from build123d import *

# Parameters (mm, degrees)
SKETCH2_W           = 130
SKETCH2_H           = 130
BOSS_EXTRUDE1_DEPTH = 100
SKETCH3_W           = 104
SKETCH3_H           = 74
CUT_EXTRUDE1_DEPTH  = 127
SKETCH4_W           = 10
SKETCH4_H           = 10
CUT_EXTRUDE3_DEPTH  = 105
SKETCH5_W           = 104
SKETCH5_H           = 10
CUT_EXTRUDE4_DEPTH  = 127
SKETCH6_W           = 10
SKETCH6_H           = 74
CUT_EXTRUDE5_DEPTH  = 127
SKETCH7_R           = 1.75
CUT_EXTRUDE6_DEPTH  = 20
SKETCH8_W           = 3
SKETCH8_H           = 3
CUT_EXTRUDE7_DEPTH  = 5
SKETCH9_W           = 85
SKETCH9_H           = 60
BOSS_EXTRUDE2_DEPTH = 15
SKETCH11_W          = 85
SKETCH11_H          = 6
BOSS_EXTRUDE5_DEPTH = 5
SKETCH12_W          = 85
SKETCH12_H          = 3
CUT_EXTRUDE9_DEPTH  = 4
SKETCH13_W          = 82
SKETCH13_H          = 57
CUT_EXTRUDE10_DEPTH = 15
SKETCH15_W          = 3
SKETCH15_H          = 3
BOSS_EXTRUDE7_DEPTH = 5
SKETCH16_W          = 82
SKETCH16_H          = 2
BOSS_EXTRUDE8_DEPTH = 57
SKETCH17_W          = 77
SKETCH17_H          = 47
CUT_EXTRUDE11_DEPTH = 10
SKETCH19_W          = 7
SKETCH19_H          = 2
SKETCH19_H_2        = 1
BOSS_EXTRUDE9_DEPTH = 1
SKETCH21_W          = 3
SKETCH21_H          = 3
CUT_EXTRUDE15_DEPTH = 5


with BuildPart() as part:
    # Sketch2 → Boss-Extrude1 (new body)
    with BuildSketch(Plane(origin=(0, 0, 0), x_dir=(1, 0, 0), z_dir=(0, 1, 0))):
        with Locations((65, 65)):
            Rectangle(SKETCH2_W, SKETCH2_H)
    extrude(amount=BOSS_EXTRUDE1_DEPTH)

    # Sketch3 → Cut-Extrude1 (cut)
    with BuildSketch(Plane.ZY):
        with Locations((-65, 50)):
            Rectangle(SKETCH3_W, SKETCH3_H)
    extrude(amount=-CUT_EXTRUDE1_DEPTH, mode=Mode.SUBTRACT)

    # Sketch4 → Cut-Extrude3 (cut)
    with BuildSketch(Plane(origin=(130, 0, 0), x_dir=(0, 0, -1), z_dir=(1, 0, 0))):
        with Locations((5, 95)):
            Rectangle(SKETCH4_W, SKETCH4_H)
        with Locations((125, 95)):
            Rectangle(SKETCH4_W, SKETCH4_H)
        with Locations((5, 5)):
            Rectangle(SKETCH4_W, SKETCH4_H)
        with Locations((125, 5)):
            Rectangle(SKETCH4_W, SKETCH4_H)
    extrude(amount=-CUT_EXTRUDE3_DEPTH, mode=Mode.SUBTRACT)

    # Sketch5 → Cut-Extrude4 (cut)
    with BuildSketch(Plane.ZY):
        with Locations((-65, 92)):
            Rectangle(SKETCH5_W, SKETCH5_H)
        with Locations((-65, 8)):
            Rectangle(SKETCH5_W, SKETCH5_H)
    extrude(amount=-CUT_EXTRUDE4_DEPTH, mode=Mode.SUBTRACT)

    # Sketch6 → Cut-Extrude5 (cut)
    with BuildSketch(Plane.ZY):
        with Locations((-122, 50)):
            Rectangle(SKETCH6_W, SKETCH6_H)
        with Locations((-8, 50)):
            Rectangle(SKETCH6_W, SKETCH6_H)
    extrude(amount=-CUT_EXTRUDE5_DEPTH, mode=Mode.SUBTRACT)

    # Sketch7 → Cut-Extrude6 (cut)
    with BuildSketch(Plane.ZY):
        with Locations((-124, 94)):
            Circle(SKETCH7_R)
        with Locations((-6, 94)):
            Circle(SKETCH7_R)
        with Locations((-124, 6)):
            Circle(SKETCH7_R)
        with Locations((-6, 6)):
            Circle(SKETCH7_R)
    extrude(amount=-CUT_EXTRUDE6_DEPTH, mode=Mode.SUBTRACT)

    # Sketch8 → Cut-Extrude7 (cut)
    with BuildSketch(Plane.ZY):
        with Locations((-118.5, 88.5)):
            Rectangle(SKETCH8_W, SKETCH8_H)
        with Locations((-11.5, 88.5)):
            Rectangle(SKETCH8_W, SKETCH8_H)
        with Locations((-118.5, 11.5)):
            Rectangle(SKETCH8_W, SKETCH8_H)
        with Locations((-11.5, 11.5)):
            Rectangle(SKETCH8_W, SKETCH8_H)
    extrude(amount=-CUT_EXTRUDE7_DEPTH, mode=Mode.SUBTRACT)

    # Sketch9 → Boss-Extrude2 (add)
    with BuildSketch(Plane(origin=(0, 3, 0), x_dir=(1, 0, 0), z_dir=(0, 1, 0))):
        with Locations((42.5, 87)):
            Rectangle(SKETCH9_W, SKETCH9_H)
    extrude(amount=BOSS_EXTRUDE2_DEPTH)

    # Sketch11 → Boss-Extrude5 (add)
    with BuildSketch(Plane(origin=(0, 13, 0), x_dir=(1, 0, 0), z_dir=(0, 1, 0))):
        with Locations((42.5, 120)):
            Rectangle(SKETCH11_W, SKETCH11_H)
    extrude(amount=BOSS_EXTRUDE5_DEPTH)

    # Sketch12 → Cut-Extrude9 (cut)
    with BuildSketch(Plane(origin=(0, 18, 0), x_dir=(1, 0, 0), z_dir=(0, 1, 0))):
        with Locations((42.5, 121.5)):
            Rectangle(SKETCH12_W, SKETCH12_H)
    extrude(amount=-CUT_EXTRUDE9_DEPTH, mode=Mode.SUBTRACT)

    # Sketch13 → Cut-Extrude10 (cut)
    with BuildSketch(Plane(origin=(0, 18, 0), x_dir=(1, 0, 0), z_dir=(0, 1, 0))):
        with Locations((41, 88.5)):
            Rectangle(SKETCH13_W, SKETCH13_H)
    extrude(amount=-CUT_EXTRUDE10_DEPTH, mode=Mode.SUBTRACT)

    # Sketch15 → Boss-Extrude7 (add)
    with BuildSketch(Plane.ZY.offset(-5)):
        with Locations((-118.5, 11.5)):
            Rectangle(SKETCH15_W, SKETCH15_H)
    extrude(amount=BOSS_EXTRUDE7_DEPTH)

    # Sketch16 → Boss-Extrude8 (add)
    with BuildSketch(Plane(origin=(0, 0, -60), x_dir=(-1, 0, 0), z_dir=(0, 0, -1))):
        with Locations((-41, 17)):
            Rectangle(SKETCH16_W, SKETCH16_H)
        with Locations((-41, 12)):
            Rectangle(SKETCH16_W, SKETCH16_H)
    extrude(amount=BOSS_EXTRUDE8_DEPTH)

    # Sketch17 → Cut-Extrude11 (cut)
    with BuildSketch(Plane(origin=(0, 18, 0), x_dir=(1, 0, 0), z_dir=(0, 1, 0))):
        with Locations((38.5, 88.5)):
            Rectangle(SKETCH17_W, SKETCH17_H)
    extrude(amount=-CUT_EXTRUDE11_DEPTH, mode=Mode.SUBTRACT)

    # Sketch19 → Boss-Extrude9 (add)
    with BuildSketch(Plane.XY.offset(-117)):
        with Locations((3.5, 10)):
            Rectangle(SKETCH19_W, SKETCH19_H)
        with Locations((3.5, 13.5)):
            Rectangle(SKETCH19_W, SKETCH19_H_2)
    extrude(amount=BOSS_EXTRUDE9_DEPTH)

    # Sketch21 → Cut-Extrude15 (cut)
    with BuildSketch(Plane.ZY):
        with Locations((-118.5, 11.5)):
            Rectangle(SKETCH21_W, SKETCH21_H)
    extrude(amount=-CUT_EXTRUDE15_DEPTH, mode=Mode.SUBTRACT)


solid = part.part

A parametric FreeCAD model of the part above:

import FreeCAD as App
import Part
import Sketcher
from FreeCAD import Vector

doc = App.newDocument("Part")
params = doc.addObject("Spreadsheet::Sheet", "Params")
for row, (alias, value) in enumerate([
    ("sketch1_width", "130 mm"),
    ("pad1_length", "100 mm"),
    ("sketch2_width", "74 mm"),
    ("sketch2_height", "104 mm"),
    ("pocket1_length", "127 mm"),
    ("sketch3_width", "10 mm"),
    ("pocket2_length", "105 mm"),
    ("sketch4_width", "10 mm"),
    ("sketch4_height", "104 mm"),
    ("pocket3_length", "127 mm"),
    ("sketch5_width", "74 mm"),
    ("sketch5_height", "10 mm"),
    ("pocket4_length", "127 mm"),
    ("sketch6_diameter", "3.5 mm"),
    ("pocket5_length", "20 mm"),
    ("sketch7_width", "3 mm"),
    ("pocket6_length", "5 mm"),
    ("sketch8_width", "85 mm"),
    ("sketch8_height", "60 mm"),
    ("pad2_length", "15 mm"),
    ("sketch9_width", "85 mm"),
    ("sketch9_height", "6 mm"),
    ("pad3_length", "5 mm"),
    ("sketch10_width", "85 mm"),
    ("sketch10_height", "3 mm"),
    ("pocket7_length", "4 mm"),
    ("sketch11_width", "82 mm"),
    ("sketch11_height", "57 mm"),
    ("pocket8_length", "15 mm"),
    ("sketch12_width", "3 mm"),
    ("pad4_length", "5 mm"),
    ("sketch13_width", "82 mm"),
    ("sketch13_height", "2 mm"),
    ("pad5_length", "57 mm"),
    ("sketch14_width", "77 mm"),
    ("sketch14_height", "47 mm"),
    ("pocket9_length", "10 mm"),
    ("sketch15_width", "7 mm"),
    ("sketch15_height", "2 mm"),
    ("sketch15_height2", "1 mm"),
    ("pad6_length", "1 mm"),
    ("sketch16_width", "3 mm"),
    ("pocket10_length", "5 mm"),
], start=1):
    params.set(f"A{row}", alias)
    params.set(f"B{row}", "=" + value)
    params.setAlias(f"B{row}", alias)

body = doc.addObject("PartDesign::Body", "Body")

# Sketch on XZ plane
sketch1 = body.newObject("Sketcher::SketchObject", "Sketch")
sketch1.AttachmentSupport = (doc.getObject("XZ_Plane"), [""])
sketch1.MapMode = "FlatFace"
sketch1.addGeometry([
    Part.LineSegment(Vector(0, -130, 0), Vector(0, 0, 0)),
    Part.LineSegment(Vector(0, 0, 0), Vector(130, 0, 0)),
    Part.LineSegment(Vector(130, 0, 0), Vector(130, -130, 0)),
    Part.LineSegment(Vector(130, -130, 0), Vector(0, -130, 0)),
], False)
sketch1.addConstraint([
    Sketcher.Constraint("Coincident", 0, 2, 1, 1),
    Sketcher.Constraint("Coincident", 1, 2, 2, 1),
    Sketcher.Constraint("Coincident", 2, 2, 3, 1),
    Sketcher.Constraint("Coincident", 3, 2, 0, 1),
    Sketcher.Constraint("Vertical", 0),
    Sketcher.Constraint("Horizontal", 1),
    Sketcher.Constraint("Vertical", 2),
    Sketcher.Constraint("Horizontal", 3),
    Sketcher.Constraint("Coincident", 0, 2, -1, 1),
    Sketcher.Constraint("Equal", 3, 0),
    Sketcher.Constraint("DistanceX", 1, 1, 1, 2, 130.0),
])
sketch1.setExpression("Constraints[10]", "Params.sketch1_width")
pad1 = body.newObject("PartDesign::Pad", "Pad")
pad1.Profile = sketch1
pad1.setExpression("Length", "Params.pad1_length")
pad1.Reversed = True

# Sketch on YZ plane
sketch2 = body.newObject("Sketcher::SketchObject", "Sketch001")
sketch2.AttachmentSupport = (doc.getObject("YZ_Plane"), [""])
sketch2.MapMode = "FlatFace"
sketch2.addGeometry([
    Part.LineSegment(Vector(87, -117, 0), Vector(13, -117, 0)),
    Part.LineSegment(Vector(13, -117, 0), Vector(13, -13, 0)),
    Part.LineSegment(Vector(13, -13, 0), Vector(87, -13, 0)),
    Part.LineSegment(Vector(87, -13, 0), Vector(87, -117, 0)),
], False)
sketch2.addConstraint([
    Sketcher.Constraint("Coincident", 0, 2, 1, 1),
    Sketcher.Constraint("Coincident", 1, 2, 2, 1),
    Sketcher.Constraint("Coincident", 2, 2, 3, 1),
    Sketcher.Constraint("Coincident", 3, 2, 0, 1),
    Sketcher.Constraint("Horizontal", 0),
    Sketcher.Constraint("Vertical", 1),
    Sketcher.Constraint("Horizontal", 2),
    Sketcher.Constraint("Vertical", 3),
    Sketcher.Constraint("DistanceX", 0, 2, 0, 1, 74.0),
    Sketcher.Constraint("DistanceY", 1, 1, 1, 2, 104.0),
    Sketcher.Constraint("DistanceX", -1, 1, 0, 2, 13.0),
    Sketcher.Constraint("DistanceY", 0, 2, -1, 1, 117.0),
])
sketch2.setExpression("Constraints[8]", "Params.sketch2_width")
sketch2.setExpression("Constraints[9]", "Params.sketch2_height")
pocket1 = body.newObject("PartDesign::Pocket", "Pocket")
pocket1.Profile = sketch2
pocket1.setExpression("Length", "Params.pocket1_length")
pocket1.Reversed = True

# Sketch on YZ plane
sketch3 = body.newObject("Sketcher::SketchObject", "Sketch002")
sketch3.AttachmentSupport = (doc.getObject("YZ_Plane"), [""])
sketch3.MapMode = "FlatFace"
sketch3.AttachmentOffset = App.Placement(Vector(0, 0, 130), App.Rotation())
sketch3.addGeometry([
    Part.LineSegment(Vector(100, 0, 0), Vector(90, 0, 0)),  # 0
    Part.LineSegment(Vector(90, 0, 0), Vector(90, -10, 0)),  # 1
    Part.LineSegment(Vector(90, -10, 0), Vector(100, -10, 0)),  # 2
    Part.LineSegment(Vector(100, -10, 0), Vector(100, 0, 0)),  # 3
    Part.LineSegment(Vector(100, -120, 0), Vector(90, -120, 0)),  # 4
    Part.LineSegment(Vector(90, -120, 0), Vector(90, -130, 0)),  # 5
    Part.LineSegment(Vector(90, -130, 0), Vector(100, -130, 0)),  # 6
    Part.LineSegment(Vector(100, -130, 0), Vector(100, -120, 0)),  # 7
    Part.LineSegment(Vector(10, 0, 0), Vector(0, 0, 0)),  # 8
    Part.LineSegment(Vector(0, 0, 0), Vector(0, -10, 0)),  # 9
    Part.LineSegment(Vector(0, -10, 0), Vector(10, -10, 0)),  # 10
    Part.LineSegment(Vector(10, -10, 0), Vector(10, 0, 0)),  # 11
    Part.LineSegment(Vector(10, -120, 0), Vector(0, -120, 0)),  # 12
    Part.LineSegment(Vector(0, -120, 0), Vector(0, -130, 0)),  # 13
    Part.LineSegment(Vector(0, -130, 0), Vector(10, -130, 0)),  # 14
    Part.LineSegment(Vector(10, -130, 0), Vector(10, -120, 0)),  # 15
], False)
sketch3.addConstraint([
    Sketcher.Constraint("Coincident", 0, 2, 1, 1),
    Sketcher.Constraint("Coincident", 1, 2, 2, 1),
    Sketcher.Constraint("Coincident", 2, 2, 3, 1),
    Sketcher.Constraint("Coincident", 3, 2, 0, 1),
    Sketcher.Constraint("Coincident", 4, 2, 5, 1),
    Sketcher.Constraint("Coincident", 5, 2, 6, 1),
    Sketcher.Constraint("Coincident", 6, 2, 7, 1),
    Sketcher.Constraint("Coincident", 7, 2, 4, 1),
    Sketcher.Constraint("Coincident", 8, 2, 9, 1),
    Sketcher.Constraint("Coincident", 9, 2, 10, 1),
    Sketcher.Constraint("Coincident", 10, 2, 11, 1),
    Sketcher.Constraint("Coincident", 11, 2, 8, 1),
    Sketcher.Constraint("Coincident", 12, 2, 13, 1),
    Sketcher.Constraint("Coincident", 13, 2, 14, 1),
    Sketcher.Constraint("Coincident", 14, 2, 15, 1),
    Sketcher.Constraint("Coincident", 15, 2, 12, 1),
    Sketcher.Constraint("Horizontal", 0),
    Sketcher.Constraint("Vertical", 1),
    Sketcher.Constraint("Horizontal", 2),
    Sketcher.Constraint("Vertical", 3),
    Sketcher.Constraint("Horizontal", 4),
    Sketcher.Constraint("Vertical", 5),
    Sketcher.Constraint("Horizontal", 6),
    Sketcher.Constraint("Vertical", 7),
    Sketcher.Constraint("Horizontal", 8),
    Sketcher.Constraint("Vertical", 9),
    Sketcher.Constraint("Horizontal", 10),
    Sketcher.Constraint("Vertical", 11),
    Sketcher.Constraint("Horizontal", 12),
    Sketcher.Constraint("Vertical", 13),
    Sketcher.Constraint("Horizontal", 14),
    Sketcher.Constraint("Vertical", 15),
    Sketcher.Constraint("Coincident", 8, 2, -1, 1),
    Sketcher.Constraint("PointOnObject", 0, 2, -1),
    Sketcher.Constraint("PointOnObject", 12, 2, -2),
    Sketcher.Constraint("Horizontal", 2, 2, 9, 2),
    Sketcher.Constraint("Horizontal", 7, 2, 12, 2),
    Sketcher.Constraint("Horizontal", 6, 2, 13, 2),
    Sketcher.Constraint("Vertical", 1, 2, 4, 2),
    Sketcher.Constraint("Vertical", 3, 2, 6, 2),
    Sketcher.Constraint("Vertical", 11, 2, 14, 2),
    Sketcher.Constraint("Equal", 6, 8),
    Sketcher.Constraint("Equal", 14, 1),
    Sketcher.Constraint("Equal", 3, 5),
    Sketcher.Constraint("DistanceX", 0, 2, 0, 1, 10.0),
    Sketcher.Constraint("DistanceX", -1, 1, 0, 2, 90.0),
    Sketcher.Constraint("DistanceY", 4, 2, -1, 1, 120.0),
])
sketch3.setExpression("Constraints[44]", "Params.sketch3_width")
pocket2 = body.newObject("PartDesign::Pocket", "Pocket001")
pocket2.Profile = sketch3
pocket2.setExpression("Length", "Params.pocket2_length")

# Sketch on YZ plane
sketch4 = body.newObject("Sketcher::SketchObject", "Sketch003")
sketch4.AttachmentSupport = (doc.getObject("YZ_Plane"), [""])
sketch4.MapMode = "FlatFace"
sketch4.addGeometry([
    Part.LineSegment(Vector(97, -117, 0), Vector(87, -117, 0)),  # 0
    Part.LineSegment(Vector(87, -117, 0), Vector(87, -13, 0)),  # 1
    Part.LineSegment(Vector(87, -13, 0), Vector(97, -13, 0)),  # 2
    Part.LineSegment(Vector(97, -13, 0), Vector(97, -117, 0)),  # 3
    Part.LineSegment(Vector(13, -117, 0), Vector(3, -117, 0)),  # 4
    Part.LineSegment(Vector(3, -117, 0), Vector(3, -13, 0)),  # 5
    Part.LineSegment(Vector(3, -13, 0), Vector(13, -13, 0)),  # 6
    Part.LineSegment(Vector(13, -13, 0), Vector(13, -117, 0)),  # 7
], False)
sketch4.addConstraint([
    Sketcher.Constraint("Coincident", 0, 2, 1, 1),
    Sketcher.Constraint("Coincident", 1, 2, 2, 1),
    Sketcher.Constraint("Coincident", 2, 2, 3, 1),
    Sketcher.Constraint("Coincident", 3, 2, 0, 1),
    Sketcher.Constraint("Coincident", 4, 2, 5, 1),
    Sketcher.Constraint("Coincident", 5, 2, 6, 1),
    Sketcher.Constraint("Coincident", 6, 2, 7, 1),
    Sketcher.Constraint("Coincident", 7, 2, 4, 1),
    Sketcher.Constraint("Horizontal", 0),
    Sketcher.Constraint("Vertical", 1),
    Sketcher.Constraint("Horizontal", 2),
    Sketcher.Constraint("Vertical", 3),
    Sketcher.Constraint("Horizontal", 4),
    Sketcher.Constraint("Vertical", 5),
    Sketcher.Constraint("Horizontal", 6),
    Sketcher.Constraint("Vertical", 7),
    Sketcher.Constraint("Horizontal", 3, 2, 4, 2),
    Sketcher.Constraint("Horizontal", 2, 2, 5, 2),
    Sketcher.Constraint("Equal", 2, 4),
    Sketcher.Constraint("DistanceX", 0, 2, 0, 1, 10.0),
    Sketcher.Constraint("DistanceY", 1, 1, 1, 2, 104.0),
    Sketcher.Constraint("DistanceX", -1, 1, 0, 2, 87.0),
    Sketcher.Constraint("DistanceY", 0, 2, -1, 1, 117.0),
    Sketcher.Constraint("DistanceX", -1, 1, 4, 2, 3.0),
])
sketch4.setExpression("Constraints[19]", "Params.sketch4_width")
sketch4.setExpression("Constraints[20]", "Params.sketch4_height")
pocket3 = body.newObject("PartDesign::Pocket", "Pocket002")
pocket3.Profile = sketch4
pocket3.setExpression("Length", "Params.pocket3_length")
pocket3.Reversed = True

# Sketch on YZ plane
sketch5 = body.newObject("Sketcher::SketchObject", "Sketch004")
sketch5.AttachmentSupport = (doc.getObject("YZ_Plane"), [""])
sketch5.MapMode = "FlatFace"
sketch5.addGeometry([
    Part.LineSegment(Vector(87, -127, 0), Vector(13, -127, 0)),  # 0
    Part.LineSegment(Vector(13, -127, 0), Vector(13, -117, 0)),  # 1
    Part.LineSegment(Vector(13, -117, 0), Vector(87, -117, 0)),  # 2
    Part.LineSegment(Vector(87, -117, 0), Vector(87, -127, 0)),  # 3
    Part.LineSegment(Vector(87, -13, 0), Vector(13, -13, 0)),  # 4
    Part.LineSegment(Vector(13, -13, 0), Vector(13, -3, 0)),  # 5
    Part.LineSegment(Vector(13, -3, 0), Vector(87, -3, 0)),  # 6
    Part.LineSegment(Vector(87, -3, 0), Vector(87, -13, 0)),  # 7
], False)
sketch5.addConstraint([
    Sketcher.Constraint("Coincident", 0, 2, 1, 1),
    Sketcher.Constraint("Coincident", 1, 2, 2, 1),
    Sketcher.Constraint("Coincident", 2, 2, 3, 1),
    Sketcher.Constraint("Coincident", 3, 2, 0, 1),
    Sketcher.Constraint("Coincident", 4, 2, 5, 1),
    Sketcher.Constraint("Coincident", 5, 2, 6, 1),
    Sketcher.Constraint("Coincident", 6, 2, 7, 1),
    Sketcher.Constraint("Coincident", 7, 2, 4, 1),
    Sketcher.Constraint("Horizontal", 0),
    Sketcher.Constraint("Vertical", 1),
    Sketcher.Constraint("Horizontal", 2),
    Sketcher.Constraint("Vertical", 3),
    Sketcher.Constraint("Horizontal", 4),
    Sketcher.Constraint("Vertical", 5),
    Sketcher.Constraint("Horizontal", 6),
    Sketcher.Constraint("Vertical", 7),
    Sketcher.Constraint("Vertical", 1, 2, 4, 2),
    Sketcher.Constraint("Vertical", 3, 2, 6, 2),
    Sketcher.Constraint("Equal", 3, 5),
    Sketcher.Constraint("DistanceX", 0, 2, 0, 1, 74.0),
    Sketcher.Constraint("DistanceY", 1, 1, 1, 2, 10.0),
    Sketcher.Constraint("DistanceX", -1, 1, 0, 2, 13.0),
    Sketcher.Constraint("DistanceY", 0, 2, -1, 1, 127.0),
    Sketcher.Constraint("DistanceY", 4, 2, -1, 1, 13.0),
])
sketch5.setExpression("Constraints[19]", "Params.sketch5_width")
sketch5.setExpression("Constraints[20]", "Params.sketch5_height")
pocket4 = body.newObject("PartDesign::Pocket", "Pocket003")
pocket4.Profile = sketch5
pocket4.setExpression("Length", "Params.pocket4_length")
pocket4.Reversed = True

# Sketch on YZ plane
sketch6 = body.newObject("Sketcher::SketchObject", "Sketch005")
sketch6.AttachmentSupport = (doc.getObject("YZ_Plane"), [""])
sketch6.MapMode = "FlatFace"
sketch6.addGeometry([
    Part.Circle(Vector(94, -124, 0), Vector(0, 0, 1), 1.8),
    Part.Circle(Vector(94, -6, 0), Vector(0, 0, 1), 1.8),
    Part.Circle(Vector(6, -124, 0), Vector(0, 0, 1), 1.8),
    Part.Circle(Vector(6, -6, 0), Vector(0, 0, 1), 1.8),
], False)
sketch6.addConstraint([
    Sketcher.Constraint("Equal", 0, 1),
    Sketcher.Constraint("Equal", 1, 2),
    Sketcher.Constraint("Equal", 2, 3),
    Sketcher.Constraint("Horizontal", 0, 3, 2, 3),
    Sketcher.Constraint("Horizontal", 1, 3, 3, 3),
    Sketcher.Constraint("Vertical", 0, 3, 1, 3),
    Sketcher.Constraint("Vertical", 2, 3, 3, 3),
    Sketcher.Constraint("Diameter", 0, 3.5),
    Sketcher.Constraint("DistanceX", -1, 1, 0, 3, 94.0),
    Sketcher.Constraint("DistanceY", 0, 3, -1, 1, 124.0),
    Sketcher.Constraint("DistanceY", 1, 3, -1, 1, 6.0),
    Sketcher.Constraint("DistanceX", -1, 1, 2, 3, 6.0),
])
sketch6.setExpression("Constraints[7]", "Params.sketch6_diameter")
pocket5 = body.newObject("PartDesign::Pocket", "Pocket004")
pocket5.Profile = sketch6
pocket5.setExpression("Length", "Params.pocket5_length")
pocket5.Reversed = True

# Sketch on YZ plane
sketch7 = body.newObject("Sketcher::SketchObject", "Sketch006")
sketch7.AttachmentSupport = (doc.getObject("YZ_Plane"), [""])
sketch7.MapMode = "FlatFace"
sketch7.addGeometry([
    Part.LineSegment(Vector(90, -120, 0), Vector(87, -120, 0)),  # 0
    Part.LineSegment(Vector(87, -120, 0), Vector(87, -117, 0)),  # 1
    Part.LineSegment(Vector(87, -117, 0), Vector(90, -117, 0)),  # 2
    Part.LineSegment(Vector(90, -117, 0), Vector(90, -120, 0)),  # 3
    Part.LineSegment(Vector(90, -13, 0), Vector(87, -13, 0)),  # 4
    Part.LineSegment(Vector(87, -13, 0), Vector(87, -10, 0)),  # 5
    Part.LineSegment(Vector(87, -10, 0), Vector(90, -10, 0)),  # 6
    Part.LineSegment(Vector(90, -10, 0), Vector(90, -13, 0)),  # 7
    Part.LineSegment(Vector(13, -120, 0), Vector(10, -120, 0)),  # 8
    Part.LineSegment(Vector(10, -120, 0), Vector(10, -117, 0)),  # 9
    Part.LineSegment(Vector(10, -117, 0), Vector(13, -117, 0)),  # 10
    Part.LineSegment(Vector(13, -117, 0), Vector(13, -120, 0)),  # 11
    Part.LineSegment(Vector(13, -13, 0), Vector(10, -13, 0)),  # 12
    Part.LineSegment(Vector(10, -13, 0), Vector(10, -10, 0)),  # 13
    Part.LineSegment(Vector(10, -10, 0), Vector(13, -10, 0)),  # 14
    Part.LineSegment(Vector(13, -10, 0), Vector(13, -13, 0)),  # 15
], False)
sketch7.addConstraint([
    Sketcher.Constraint("Coincident", 0, 2, 1, 1),
    Sketcher.Constraint("Coincident", 1, 2, 2, 1),
    Sketcher.Constraint("Coincident", 2, 2, 3, 1),
    Sketcher.Constraint("Coincident", 3, 2, 0, 1),
    Sketcher.Constraint("Coincident", 4, 2, 5, 1),
    Sketcher.Constraint("Coincident", 5, 2, 6, 1),
    Sketcher.Constraint("Coincident", 6, 2, 7, 1),
    Sketcher.Constraint("Coincident", 7, 2, 4, 1),
    Sketcher.Constraint("Coincident", 8, 2, 9, 1),
    Sketcher.Constraint("Coincident", 9, 2, 10, 1),
    Sketcher.Constraint("Coincident", 10, 2, 11, 1),
    Sketcher.Constraint("Coincident", 11, 2, 8, 1),
    Sketcher.Constraint("Coincident", 12, 2, 13, 1),
    Sketcher.Constraint("Coincident", 13, 2, 14, 1),
    Sketcher.Constraint("Coincident", 14, 2, 15, 1),
    Sketcher.Constraint("Coincident", 15, 2, 12, 1),
    Sketcher.Constraint("Horizontal", 0),
    Sketcher.Constraint("Vertical", 1),
    Sketcher.Constraint("Horizontal", 2),
    Sketcher.Constraint("Vertical", 3),
    Sketcher.Constraint("Horizontal", 4),
    Sketcher.Constraint("Vertical", 5),
    Sketcher.Constraint("Horizontal", 6),
    Sketcher.Constraint("Vertical", 7),
    Sketcher.Constraint("Horizontal", 8),
    Sketcher.Constraint("Vertical", 9),
    Sketcher.Constraint("Horizontal", 10),
    Sketcher.Constraint("Vertical", 11),
    Sketcher.Constraint("Horizontal", 12),
    Sketcher.Constraint("Vertical", 13),
    Sketcher.Constraint("Horizontal", 14),
    Sketcher.Constraint("Vertical", 15),
    Sketcher.Constraint("Horizontal", 3, 2, 8, 2),
    Sketcher.Constraint("Horizontal", 2, 2, 9, 2),
    Sketcher.Constraint("Horizontal", 7, 2, 12, 2),
    Sketcher.Constraint("Horizontal", 6, 2, 13, 2),
    Sketcher.Constraint("Vertical", 1, 2, 4, 2),
    Sketcher.Constraint("Vertical", 3, 2, 6, 2),
    Sketcher.Constraint("Vertical", 9, 2, 12, 2),
    Sketcher.Constraint("Vertical", 11, 2, 14, 2),
    Sketcher.Constraint("Equal", 6, 8),
    Sketcher.Constraint("Equal", 14, 1),
    Sketcher.Constraint("Equal", 3, 5),
    Sketcher.Constraint("DistanceX", 0, 2, 0, 1, 3.0),
    Sketcher.Constraint("DistanceX", -1, 1, 0, 2, 87.0),
    Sketcher.Constraint("DistanceY", 0, 2, -1, 1, 120.0),
    Sketcher.Constraint("DistanceY", 4, 2, -1, 1, 13.0),
    Sketcher.Constraint("DistanceX", -1, 1, 8, 2, 10.0),
])
sketch7.setExpression("Constraints[43]", "Params.sketch7_width")
pocket6 = body.newObject("PartDesign::Pocket", "Pocket005")
pocket6.Profile = sketch7
pocket6.setExpression("Length", "Params.pocket6_length")
pocket6.Reversed = True

# Sketch on XZ plane
sketch8 = body.newObject("Sketcher::SketchObject", "Sketch007")
sketch8.AttachmentSupport = (doc.getObject("XZ_Plane"), [""])
sketch8.MapMode = "FlatFace"
sketch8.AttachmentOffset = App.Placement(Vector(0, 0, -3), App.Rotation())
sketch8.addGeometry([
    Part.LineSegment(Vector(0, -117, 0), Vector(0, -57, 0)),
    Part.LineSegment(Vector(0, -57, 0), Vector(85, -57, 0)),
    Part.LineSegment(Vector(85, -57, 0), Vector(85, -117, 0)),
    Part.LineSegment(Vector(85, -117, 0), Vector(0, -117, 0)),
], False)
sketch8.addConstraint([
    Sketcher.Constraint("Coincident", 0, 2, 1, 1),
    Sketcher.Constraint("Coincident", 1, 2, 2, 1),
    Sketcher.Constraint("Coincident", 2, 2, 3, 1),
    Sketcher.Constraint("Coincident", 3, 2, 0, 1),
    Sketcher.Constraint("Vertical", 0),
    Sketcher.Constraint("Horizontal", 1),
    Sketcher.Constraint("Vertical", 2),
    Sketcher.Constraint("Horizontal", 3),
    Sketcher.Constraint("PointOnObject", 0, 2, -2),
    Sketcher.Constraint("DistanceX", 1, 1, 1, 2, 85.0),
    Sketcher.Constraint("DistanceY", 0, 1, 0, 2, 60.0),
    Sketcher.Constraint("DistanceY", 0, 2, -1, 1, 57.0),
])
sketch8.setExpression("Constraints[9]", "Params.sketch8_width")
sketch8.setExpression("Constraints[10]", "Params.sketch8_height")
pad2 = body.newObject("PartDesign::Pad", "Pad001")
pad2.Profile = sketch8
pad2.setExpression("Length", "Params.pad2_length")
pad2.Reversed = True

# Sketch on XZ plane
sketch9 = body.newObject("Sketcher::SketchObject", "Sketch008")
sketch9.AttachmentSupport = (doc.getObject("XZ_Plane"), [""])
sketch9.MapMode = "FlatFace"
sketch9.AttachmentOffset = App.Placement(Vector(0, 0, -13), App.Rotation())
sketch9.addGeometry([
    Part.LineSegment(Vector(0, -123, 0), Vector(0, -117, 0)),
    Part.LineSegment(Vector(0, -117, 0), Vector(85, -117, 0)),
    Part.LineSegment(Vector(85, -117, 0), Vector(85, -123, 0)),
    Part.LineSegment(Vector(85, -123, 0), Vector(0, -123, 0)),
], False)
sketch9.addConstraint([
    Sketcher.Constraint("Coincident", 0, 2, 1, 1),
    Sketcher.Constraint("Coincident", 1, 2, 2, 1),
    Sketcher.Constraint("Coincident", 2, 2, 3, 1),
    Sketcher.Constraint("Coincident", 3, 2, 0, 1),
    Sketcher.Constraint("Vertical", 0),
    Sketcher.Constraint("Horizontal", 1),
    Sketcher.Constraint("Vertical", 2),
    Sketcher.Constraint("Horizontal", 3),
    Sketcher.Constraint("PointOnObject", 0, 2, -2),
    Sketcher.Constraint("DistanceX", 1, 1, 1, 2, 85.0),
    Sketcher.Constraint("DistanceY", 0, 1, 0, 2, 6.0),
    Sketcher.Constraint("DistanceY", 0, 2, -1, 1, 117.0),
])
sketch9.setExpression("Constraints[9]", "Params.sketch9_width")
sketch9.setExpression("Constraints[10]", "Params.sketch9_height")
pad3 = body.newObject("PartDesign::Pad", "Pad002")
pad3.Profile = sketch9
pad3.setExpression("Length", "Params.pad3_length")
pad3.Reversed = True

# Sketch on XZ plane
sketch10 = body.newObject("Sketcher::SketchObject", "Sketch009")
sketch10.AttachmentSupport = (doc.getObject("XZ_Plane"), [""])
sketch10.MapMode = "FlatFace"
sketch10.AttachmentOffset = App.Placement(Vector(0, 0, -18), App.Rotation())
sketch10.addGeometry([
    Part.LineSegment(Vector(0, -123, 0), Vector(0, -120, 0)),
    Part.LineSegment(Vector(0, -120, 0), Vector(85, -120, 0)),
    Part.LineSegment(Vector(85, -120, 0), Vector(85, -123, 0)),
    Part.LineSegment(Vector(85, -123, 0), Vector(0, -123, 0)),
], False)
sketch10.addConstraint([
    Sketcher.Constraint("Coincident", 0, 2, 1, 1),
    Sketcher.Constraint("Coincident", 1, 2, 2, 1),
    Sketcher.Constraint("Coincident", 2, 2, 3, 1),
    Sketcher.Constraint("Coincident", 3, 2, 0, 1),
    Sketcher.Constraint("Vertical", 0),
    Sketcher.Constraint("Horizontal", 1),
    Sketcher.Constraint("Vertical", 2),
    Sketcher.Constraint("Horizontal", 3),
    Sketcher.Constraint("PointOnObject", 0, 2, -2),
    Sketcher.Constraint("DistanceX", 1, 1, 1, 2, 85.0),
    Sketcher.Constraint("DistanceY", 0, 1, 0, 2, 3.0),
    Sketcher.Constraint("DistanceY", 0, 2, -1, 1, 120.0),
])
sketch10.setExpression("Constraints[9]", "Params.sketch10_width")
sketch10.setExpression("Constraints[10]", "Params.sketch10_height")
pocket7 = body.newObject("PartDesign::Pocket", "Pocket006")
pocket7.Profile = sketch10
pocket7.setExpression("Length", "Params.pocket7_length")
pocket7.Reversed = True

# Sketch on XZ plane
sketch11 = body.newObject("Sketcher::SketchObject", "Sketch010")
sketch11.AttachmentSupport = (doc.getObject("XZ_Plane"), [""])
sketch11.MapMode = "FlatFace"
sketch11.AttachmentOffset = App.Placement(Vector(0, 0, -18), App.Rotation())
sketch11.addGeometry([
    Part.LineSegment(Vector(0, -117, 0), Vector(0, -60, 0)),
    Part.LineSegment(Vector(0, -60, 0), Vector(82, -60, 0)),
    Part.LineSegment(Vector(82, -60, 0), Vector(82, -117, 0)),
    Part.LineSegment(Vector(82, -117, 0), Vector(0, -117, 0)),
], False)
sketch11.addConstraint([
    Sketcher.Constraint("Coincident", 0, 2, 1, 1),
    Sketcher.Constraint("Coincident", 1, 2, 2, 1),
    Sketcher.Constraint("Coincident", 2, 2, 3, 1),
    Sketcher.Constraint("Coincident", 3, 2, 0, 1),
    Sketcher.Constraint("Vertical", 0),
    Sketcher.Constraint("Horizontal", 1),
    Sketcher.Constraint("Vertical", 2),
    Sketcher.Constraint("Horizontal", 3),
    Sketcher.Constraint("PointOnObject", 0, 2, -2),
    Sketcher.Constraint("DistanceX", 1, 1, 1, 2, 82.0),
    Sketcher.Constraint("DistanceY", 0, 1, 0, 2, 57.0),
    Sketcher.Constraint("DistanceY", 0, 2, -1, 1, 60.0),
])
sketch11.setExpression("Constraints[9]", "Params.sketch11_width")
sketch11.setExpression("Constraints[10]", "Params.sketch11_height")
pocket8 = body.newObject("PartDesign::Pocket", "Pocket007")
pocket8.Profile = sketch11
pocket8.setExpression("Length", "Params.pocket8_length")
pocket8.Reversed = True

# Sketch on YZ plane
sketch12 = body.newObject("Sketcher::SketchObject", "Sketch011")
sketch12.AttachmentSupport = (doc.getObject("YZ_Plane"), [""])
sketch12.MapMode = "FlatFace"
sketch12.AttachmentOffset = App.Placement(Vector(0, 0, 5), App.Rotation())
sketch12.addGeometry([
    Part.LineSegment(Vector(13, -120, 0), Vector(10, -120, 0)),
    Part.LineSegment(Vector(10, -120, 0), Vector(10, -117, 0)),
    Part.LineSegment(Vector(10, -117, 0), Vector(13, -117, 0)),
    Part.LineSegment(Vector(13, -117, 0), Vector(13, -120, 0)),
], False)
sketch12.addConstraint([
    Sketcher.Constraint("Coincident", 0, 2, 1, 1),
    Sketcher.Constraint("Coincident", 1, 2, 2, 1),
    Sketcher.Constraint("Coincident", 2, 2, 3, 1),
    Sketcher.Constraint("Coincident", 3, 2, 0, 1),
    Sketcher.Constraint("Horizontal", 0),
    Sketcher.Constraint("Vertical", 1),
    Sketcher.Constraint("Horizontal", 2),
    Sketcher.Constraint("Vertical", 3),
    Sketcher.Constraint("Equal", 2, 1),
    Sketcher.Constraint("DistanceX", 0, 2, 0, 1, 3.0),
    Sketcher.Constraint("DistanceX", -1, 1, 0, 2, 10.0),
    Sketcher.Constraint("DistanceY", 0, 2, -1, 1, 120.0),
])
sketch12.setExpression("Constraints[9]", "Params.sketch12_width")
pad4 = body.newObject("PartDesign::Pad", "Pad003")
pad4.Profile = sketch12
pad4.setExpression("Length", "Params.pad4_length")
pad4.Reversed = True

# Sketch on XY plane
sketch13 = body.newObject("Sketcher::SketchObject", "Sketch012")
sketch13.AttachmentSupport = (doc.getObject("XY_Plane"), [""])
sketch13.MapMode = "FlatFace"
sketch13.AttachmentOffset = App.Placement(Vector(0, 0, -60), App.Rotation())
sketch13.addGeometry([
    Part.LineSegment(Vector(82, 18, 0), Vector(82, 16, 0)),  # 0
    Part.LineSegment(Vector(82, 16, 0), Vector(0, 16, 0)),  # 1
    Part.LineSegment(Vector(0, 16, 0), Vector(0, 18, 0)),  # 2
    Part.LineSegment(Vector(0, 18, 0), Vector(82, 18, 0)),  # 3
    Part.LineSegment(Vector(82, 13, 0), Vector(82, 11, 0)),  # 4
    Part.LineSegment(Vector(82, 11, 0), Vector(0, 11, 0)),  # 5
    Part.LineSegment(Vector(0, 11, 0), Vector(0, 13, 0)),  # 6
    Part.LineSegment(Vector(0, 13, 0), Vector(82, 13, 0)),  # 7
], False)
sketch13.addConstraint([
    Sketcher.Constraint("Coincident", 0, 2, 1, 1),
    Sketcher.Constraint("Coincident", 1, 2, 2, 1),
    Sketcher.Constraint("Coincident", 2, 2, 3, 1),
    Sketcher.Constraint("Coincident", 3, 2, 0, 1),
    Sketcher.Constraint("Coincident", 4, 2, 5, 1),
    Sketcher.Constraint("Coincident", 5, 2, 6, 1),
    Sketcher.Constraint("Coincident", 6, 2, 7, 1),
    Sketcher.Constraint("Coincident", 7, 2, 4, 1),
    Sketcher.Constraint("Vertical", 0),
    Sketcher.Constraint("Horizontal", 1),
    Sketcher.Constraint("Vertical", 2),
    Sketcher.Constraint("Horizontal", 3),
    Sketcher.Constraint("Vertical", 4),
    Sketcher.Constraint("Horizontal", 5),
    Sketcher.Constraint("Vertical", 6),
    Sketcher.Constraint("Horizontal", 7),
    Sketcher.Constraint("PointOnObject", 1, 2, -2),
    Sketcher.Constraint("PointOnObject", 5, 2, -2),
    Sketcher.Constraint("Vertical", 3, 2, 4, 2),
    Sketcher.Constraint("Equal", 2, 4),
    Sketcher.Constraint("DistanceX", 1, 2, 1, 1, 82.0),
    Sketcher.Constraint("DistanceY", 0, 2, 0, 1, 2.0),
    Sketcher.Constraint("DistanceY", -1, 1, 0, 2, 16.0),
    Sketcher.Constraint("DistanceY", -1, 1, 4, 2, 11.0),
])
sketch13.setExpression("Constraints[20]", "Params.sketch13_width")
sketch13.setExpression("Constraints[21]", "Params.sketch13_height")
pad5 = body.newObject("PartDesign::Pad", "Pad004")
pad5.Profile = sketch13
pad5.setExpression("Length", "Params.pad5_length")
pad5.Reversed = True

# Sketch on XZ plane
sketch14 = body.newObject("Sketcher::SketchObject", "Sketch013")
sketch14.AttachmentSupport = (doc.getObject("XZ_Plane"), [""])
sketch14.MapMode = "FlatFace"
sketch14.AttachmentOffset = App.Placement(Vector(0, 0, -18), App.Rotation())
sketch14.addGeometry([
    Part.LineSegment(Vector(0, -112, 0), Vector(0, -65, 0)),
    Part.LineSegment(Vector(0, -65, 0), Vector(77, -65, 0)),
    Part.LineSegment(Vector(77, -65, 0), Vector(77, -112, 0)),
    Part.LineSegment(Vector(77, -112, 0), Vector(0, -112, 0)),
], False)
sketch14.addConstraint([
    Sketcher.Constraint("Coincident", 0, 2, 1, 1),
    Sketcher.Constraint("Coincident", 1, 2, 2, 1),
    Sketcher.Constraint("Coincident", 2, 2, 3, 1),
    Sketcher.Constraint("Coincident", 3, 2, 0, 1),
    Sketcher.Constraint("Vertical", 0),
    Sketcher.Constraint("Horizontal", 1),
    Sketcher.Constraint("Vertical", 2),
    Sketcher.Constraint("Horizontal", 3),
    Sketcher.Constraint("PointOnObject", 0, 2, -2),
    Sketcher.Constraint("DistanceX", 1, 1, 1, 2, 77.0),
    Sketcher.Constraint("DistanceY", 0, 1, 0, 2, 47.0),
    Sketcher.Constraint("DistanceY", 0, 2, -1, 1, 65.0),
])
sketch14.setExpression("Constraints[9]", "Params.sketch14_width")
sketch14.setExpression("Constraints[10]", "Params.sketch14_height")
pocket9 = body.newObject("PartDesign::Pocket", "Pocket008")
pocket9.Profile = sketch14
pocket9.setExpression("Length", "Params.pocket9_length")
pocket9.Reversed = True

# Sketch on XY plane
sketch15 = body.newObject("Sketcher::SketchObject", "Sketch014")
sketch15.AttachmentSupport = (doc.getObject("XY_Plane"), [""])
sketch15.MapMode = "FlatFace"
sketch15.AttachmentOffset = App.Placement(Vector(0, 0, -117), App.Rotation())
sketch15.addGeometry([
    Part.LineSegment(Vector(0, 11, 0), Vector(0, 9, 0)),  # 0
    Part.LineSegment(Vector(0, 9, 0), Vector(7, 9, 0)),  # 1
    Part.LineSegment(Vector(7, 9, 0), Vector(7, 11, 0)),  # 2
    Part.LineSegment(Vector(7, 11, 0), Vector(0, 11, 0)),  # 3
    Part.LineSegment(Vector(0, 14, 0), Vector(0, 13, 0)),  # 4
    Part.LineSegment(Vector(0, 13, 0), Vector(7, 13, 0)),  # 5
    Part.LineSegment(Vector(7, 13, 0), Vector(7, 14, 0)),  # 6
    Part.LineSegment(Vector(7, 14, 0), Vector(0, 14, 0)),  # 7
], False)
sketch15.addConstraint([
    Sketcher.Constraint("Coincident", 0, 2, 1, 1),
    Sketcher.Constraint("Coincident", 1, 2, 2, 1),
    Sketcher.Constraint("Coincident", 2, 2, 3, 1),
    Sketcher.Constraint("Coincident", 3, 2, 0, 1),
    Sketcher.Constraint("Coincident", 4, 2, 5, 1),
    Sketcher.Constraint("Coincident", 5, 2, 6, 1),
    Sketcher.Constraint("Coincident", 6, 2, 7, 1),
    Sketcher.Constraint("Coincident", 7, 2, 4, 1),
    Sketcher.Constraint("Vertical", 0),
    Sketcher.Constraint("Horizontal", 1),
    Sketcher.Constraint("Vertical", 2),
    Sketcher.Constraint("Horizontal", 3),
    Sketcher.Constraint("Vertical", 4),
    Sketcher.Constraint("Horizontal", 5),
    Sketcher.Constraint("Vertical", 6),
    Sketcher.Constraint("Horizontal", 7),
    Sketcher.Constraint("PointOnObject", 0, 2, -2),
    Sketcher.Constraint("PointOnObject", 4, 2, -2),
    Sketcher.Constraint("Vertical", 2, 2, 5, 2),
    Sketcher.Constraint("DistanceX", 1, 1, 1, 2, 7.0),
    Sketcher.Constraint("DistanceY", 0, 2, 0, 1, 2.0),
    Sketcher.Constraint("DistanceY", 4, 2, 4, 1, 1.0),
    Sketcher.Constraint("DistanceY", -1, 1, 0, 2, 9.0),
    Sketcher.Constraint("DistanceY", -1, 1, 4, 2, 13.0),
])
sketch15.setExpression("Constraints[19]", "Params.sketch15_width")
sketch15.setExpression("Constraints[20]", "Params.sketch15_height")
sketch15.setExpression("Constraints[21]", "Params.sketch15_height2")
pad6 = body.newObject("PartDesign::Pad", "Pad005")
pad6.Profile = sketch15
pad6.setExpression("Length", "Params.pad6_length")

# Sketch on YZ plane
sketch16 = body.newObject("Sketcher::SketchObject", "Sketch015")
sketch16.AttachmentSupport = (doc.getObject("YZ_Plane"), [""])
sketch16.MapMode = "FlatFace"
sketch16.addGeometry([
    Part.LineSegment(Vector(13, -120, 0), Vector(10, -120, 0)),
    Part.LineSegment(Vector(10, -120, 0), Vector(10, -117, 0)),
    Part.LineSegment(Vector(10, -117, 0), Vector(13, -117, 0)),
    Part.LineSegment(Vector(13, -117, 0), Vector(13, -120, 0)),
], False)
sketch16.addConstraint([
    Sketcher.Constraint("Coincident", 0, 2, 1, 1),
    Sketcher.Constraint("Coincident", 1, 2, 2, 1),
    Sketcher.Constraint("Coincident", 2, 2, 3, 1),
    Sketcher.Constraint("Coincident", 3, 2, 0, 1),
    Sketcher.Constraint("Horizontal", 0),
    Sketcher.Constraint("Vertical", 1),
    Sketcher.Constraint("Horizontal", 2),
    Sketcher.Constraint("Vertical", 3),
    Sketcher.Constraint("Equal", 2, 1),
    Sketcher.Constraint("DistanceX", 0, 2, 0, 1, 3.0),
    Sketcher.Constraint("DistanceX", -1, 1, 0, 2, 10.0),
    Sketcher.Constraint("DistanceY", 0, 2, -1, 1, 120.0),
])
sketch16.setExpression("Constraints[9]", "Params.sketch16_width")
pocket10 = body.newObject("PartDesign::Pocket", "Pocket009")
pocket10.Profile = sketch16
pocket10.setExpression("Length", "Params.pocket10_length")
pocket10.Reversed = True

doc.recompute()
